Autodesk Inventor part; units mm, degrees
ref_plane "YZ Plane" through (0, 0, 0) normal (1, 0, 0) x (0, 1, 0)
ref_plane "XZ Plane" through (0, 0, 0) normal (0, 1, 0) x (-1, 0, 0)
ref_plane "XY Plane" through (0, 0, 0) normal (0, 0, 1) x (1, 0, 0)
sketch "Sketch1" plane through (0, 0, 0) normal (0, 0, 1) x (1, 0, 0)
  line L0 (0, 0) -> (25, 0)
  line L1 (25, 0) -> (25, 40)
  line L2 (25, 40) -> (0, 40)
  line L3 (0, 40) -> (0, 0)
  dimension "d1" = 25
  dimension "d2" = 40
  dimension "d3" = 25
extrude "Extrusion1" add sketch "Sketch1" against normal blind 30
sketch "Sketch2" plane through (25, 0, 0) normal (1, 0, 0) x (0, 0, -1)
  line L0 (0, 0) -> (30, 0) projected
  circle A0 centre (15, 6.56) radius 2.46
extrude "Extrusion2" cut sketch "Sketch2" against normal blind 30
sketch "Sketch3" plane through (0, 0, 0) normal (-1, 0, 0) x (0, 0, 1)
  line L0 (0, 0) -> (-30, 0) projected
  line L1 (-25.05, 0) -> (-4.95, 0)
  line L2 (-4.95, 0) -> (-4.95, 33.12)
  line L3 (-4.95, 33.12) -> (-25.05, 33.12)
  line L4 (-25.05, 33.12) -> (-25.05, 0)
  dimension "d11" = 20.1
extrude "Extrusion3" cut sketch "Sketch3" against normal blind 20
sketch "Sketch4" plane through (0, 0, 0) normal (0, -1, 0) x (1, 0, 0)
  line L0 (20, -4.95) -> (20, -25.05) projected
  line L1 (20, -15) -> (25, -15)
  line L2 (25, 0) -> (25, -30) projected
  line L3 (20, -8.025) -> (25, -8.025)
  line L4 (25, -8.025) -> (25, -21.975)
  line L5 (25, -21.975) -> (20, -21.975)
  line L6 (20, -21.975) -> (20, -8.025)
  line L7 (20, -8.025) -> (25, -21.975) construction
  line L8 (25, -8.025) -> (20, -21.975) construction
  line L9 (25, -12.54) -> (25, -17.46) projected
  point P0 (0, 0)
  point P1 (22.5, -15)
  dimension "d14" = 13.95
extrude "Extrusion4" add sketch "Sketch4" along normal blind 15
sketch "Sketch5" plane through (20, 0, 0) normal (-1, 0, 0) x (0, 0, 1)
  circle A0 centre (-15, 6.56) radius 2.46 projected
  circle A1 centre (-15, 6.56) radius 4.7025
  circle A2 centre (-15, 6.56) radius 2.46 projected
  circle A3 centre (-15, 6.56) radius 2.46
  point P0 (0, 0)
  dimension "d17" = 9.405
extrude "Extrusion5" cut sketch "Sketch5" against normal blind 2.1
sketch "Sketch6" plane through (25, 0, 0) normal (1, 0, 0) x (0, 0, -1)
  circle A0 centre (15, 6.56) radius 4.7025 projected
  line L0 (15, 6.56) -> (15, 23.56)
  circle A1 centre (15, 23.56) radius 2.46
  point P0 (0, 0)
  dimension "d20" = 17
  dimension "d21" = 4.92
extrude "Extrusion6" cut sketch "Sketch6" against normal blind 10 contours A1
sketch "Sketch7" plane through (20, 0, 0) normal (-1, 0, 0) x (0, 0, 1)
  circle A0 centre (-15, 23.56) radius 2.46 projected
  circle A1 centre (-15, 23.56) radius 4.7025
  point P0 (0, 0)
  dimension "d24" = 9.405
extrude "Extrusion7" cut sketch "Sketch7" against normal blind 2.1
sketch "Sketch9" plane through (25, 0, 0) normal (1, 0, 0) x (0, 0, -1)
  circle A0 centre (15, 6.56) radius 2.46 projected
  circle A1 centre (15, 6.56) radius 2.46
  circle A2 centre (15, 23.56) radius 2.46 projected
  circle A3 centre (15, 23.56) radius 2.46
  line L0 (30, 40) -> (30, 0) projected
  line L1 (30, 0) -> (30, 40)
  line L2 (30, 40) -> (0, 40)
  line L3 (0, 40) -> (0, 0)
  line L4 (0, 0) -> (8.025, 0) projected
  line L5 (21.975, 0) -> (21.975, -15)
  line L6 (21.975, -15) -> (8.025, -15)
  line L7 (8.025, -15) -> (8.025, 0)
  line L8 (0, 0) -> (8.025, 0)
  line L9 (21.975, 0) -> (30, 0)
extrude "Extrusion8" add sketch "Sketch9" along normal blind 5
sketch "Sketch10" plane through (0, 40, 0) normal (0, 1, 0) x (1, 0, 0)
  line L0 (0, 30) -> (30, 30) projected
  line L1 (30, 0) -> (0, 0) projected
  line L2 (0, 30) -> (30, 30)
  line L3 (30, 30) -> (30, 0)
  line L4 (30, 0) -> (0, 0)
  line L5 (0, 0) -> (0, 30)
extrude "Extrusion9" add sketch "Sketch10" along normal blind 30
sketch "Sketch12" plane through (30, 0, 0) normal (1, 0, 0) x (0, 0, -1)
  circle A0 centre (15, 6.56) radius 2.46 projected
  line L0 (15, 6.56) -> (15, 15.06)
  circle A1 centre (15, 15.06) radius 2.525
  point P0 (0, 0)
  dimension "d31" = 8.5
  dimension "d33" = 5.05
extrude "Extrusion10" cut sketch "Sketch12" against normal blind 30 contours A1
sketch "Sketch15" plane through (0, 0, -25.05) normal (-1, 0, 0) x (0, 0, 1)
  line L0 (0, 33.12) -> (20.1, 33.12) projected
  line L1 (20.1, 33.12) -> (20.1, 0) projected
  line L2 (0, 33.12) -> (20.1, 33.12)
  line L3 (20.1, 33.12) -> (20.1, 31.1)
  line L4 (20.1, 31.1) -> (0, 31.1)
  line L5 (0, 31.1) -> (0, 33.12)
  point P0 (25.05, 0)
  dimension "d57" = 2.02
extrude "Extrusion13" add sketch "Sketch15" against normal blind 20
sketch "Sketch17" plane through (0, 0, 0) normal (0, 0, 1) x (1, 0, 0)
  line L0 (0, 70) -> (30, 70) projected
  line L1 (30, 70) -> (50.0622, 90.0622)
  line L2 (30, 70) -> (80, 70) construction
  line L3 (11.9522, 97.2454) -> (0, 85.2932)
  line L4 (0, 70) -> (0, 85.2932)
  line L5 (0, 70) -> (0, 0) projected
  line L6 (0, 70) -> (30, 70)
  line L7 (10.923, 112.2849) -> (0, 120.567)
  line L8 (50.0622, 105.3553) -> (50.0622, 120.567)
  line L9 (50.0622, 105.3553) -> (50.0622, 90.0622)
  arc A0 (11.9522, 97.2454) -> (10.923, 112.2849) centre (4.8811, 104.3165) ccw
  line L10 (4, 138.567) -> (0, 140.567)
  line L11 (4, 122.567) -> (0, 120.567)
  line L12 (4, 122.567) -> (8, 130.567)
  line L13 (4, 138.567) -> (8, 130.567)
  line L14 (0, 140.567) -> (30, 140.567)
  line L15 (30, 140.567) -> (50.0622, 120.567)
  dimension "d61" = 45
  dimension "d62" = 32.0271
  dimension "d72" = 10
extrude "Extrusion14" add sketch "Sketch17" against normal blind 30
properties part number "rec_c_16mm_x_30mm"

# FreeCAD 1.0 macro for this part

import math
import FreeCAD as App
import Part
import Sketcher
Q = App.Units.Quantity

doc = App.newDocument("Part")
params = doc.addObject("Spreadsheet::Sheet", "Params")
for row, (alias, value) in enumerate([
    ("sketch1_width", "25 mm"),
    ("sketch1_height", "40 mm"),
    ("pad1_length", "30 mm"),
    ("sketch2_diameter", "4.92 mm"),
    ("pocket1_length", "30 mm"),
    ("sketch3_height", "20.1 mm"),
    ("sketch3_width", "33.12 mm"),
    ("pocket2_length", "20 mm"),
    ("sketch4_height", "13.95 mm"),
    ("sketch4_width", "5 mm"),
    ("pad2_length", "15 mm"),
    ("sketch5_diameter", "4.92 mm"),
    ("pocket3_length", "2.1 mm"),
    ("sketch6_diameter", "4.92 mm"),
    ("pocket4_length", "10 mm"),
    ("sketch7_diameter", "4.92 mm"),
    ("pocket5_length", "2.1 mm"),
    ("sketch8_diameter", "4.92 mm"),
    ("sketch8_width", "40 mm"),
    ("sketch8_width2", "15 mm"),
    ("sketch8_height", "30 mm"),
    ("sketch8_height2", "13.95 mm"),
    ("pad3_length", "5 mm"),
    ("sketch9_width", "30 mm"),
    ("pad4_length", "30 mm"),
    ("sketch10_diameter", "5.05 mm"),
    ("pocket6_length", "30 mm"),
    ("sketch11_width", "2.02 mm"),
    ("sketch11_height", "20.1 mm"),
    ("pad5_length", "20 mm"),
    ("sketch12_radius", "10 mm"),
    ("sketch12_width", "30 mm"),
    ("pad6_length", "30 mm"),
], start=1):
    params.set(f"A{row}", alias)
    params.set(f"B{row}", "=" + value)
    params.setAlias(f"B{row}", alias)

body = doc.addObject("PartDesign::Body", "Body")

sketch1 = doc.addObject("Sketcher::SketchObject", "Sketch")
body.addObject(sketch1)
sketch1.AttachmentSupport = (doc.XY_Plane, [""])
sketch1.MapMode = "FlatFace"
sketch1.addGeometry([
    Part.LineSegment(App.Vector(0, 40, 0), App.Vector(0, 0, 0)),
    Part.LineSegment(App.Vector(0, 0, 0), App.Vector(25, 0, 0)),
    Part.LineSegment(App.Vector(25, 0, 0), App.Vector(25, 40, 0)),
    Part.LineSegment(App.Vector(25, 40, 0), App.Vector(0, 40, 0)),
], False)
sketch1.addConstraint([
    Sketcher.Constraint("Coincident", 0, 2, 1, 1),
    Sketcher.Constraint("Coincident", 1, 2, 2, 1),
    Sketcher.Constraint("Coincident", 2, 2, 3, 1),
    Sketcher.Constraint("Coincident", 3, 2, 0, 1),
    Sketcher.Constraint("Vertical", 0),
    Sketcher.Constraint("Horizontal", 1),
    Sketcher.Constraint("Vertical", 2),
    Sketcher.Constraint("Horizontal", 3),
    Sketcher.Constraint("Coincident", 0, 2, -1, 1),
    Sketcher.Constraint("DistanceX", 1, 1, 1, 2, Q("25 mm")),
    Sketcher.Constraint("DistanceY", 0, 2, 0, 1, Q("40 mm")),
])
sketch1.setExpression("Constraints[9]", "Params.sketch1_width")
sketch1.setExpression("Constraints[10]", "Params.sketch1_height")
pad1 = doc.addObject("PartDesign::Pad", "Pad")
body.addObject(pad1)
pad1.Profile = sketch1
pad1.setExpression("Length", "Params.pad1_length")
pad1.Reversed = True

sketch2 = doc.addObject("Sketcher::SketchObject", "Sketch001")
body.addObject(sketch2)
sketch2.AttachmentSupport = (doc.YZ_Plane, [""])
sketch2.MapMode = "FlatFace"
sketch2.AttachmentOffset = App.Placement(App.Vector(0, 0, 25), App.Rotation())
sketch2.addGeometry(Part.Circle(App.Vector(6.6, -15, 0), App.Vector(0, 0, 1), 2.5), False)
sketch2.addConstraint([
    Sketcher.Constraint("Diameter", 0, Q("4.92 mm")),
    Sketcher.Constraint("DistanceY", 0, 3, -1, 1, Q("15 mm")),
    Sketcher.Constraint("DistanceX", -1, 1, 0, 3, Q("6.56 mm")),
])
sketch2.setExpression("Constraints[0]", "Params.sketch2_diameter")
pocket1 = doc.addObject("PartDesign::Pocket", "Pocket")
body.addObject(pocket1)
pocket1.Profile = sketch2
pocket1.setExpression("Length", "Params.pocket1_length")

sketch3 = doc.addObject("Sketcher::SketchObject", "Sketch002")
body.addObject(sketch3)
sketch3.AttachmentSupport = (doc.YZ_Plane, [""])
sketch3.MapMode = "FlatFace"
sketch3.addGeometry([
    Part.LineSegment(App.Vector(0, -25, 0), App.Vector(0, -5, 0)),
    Part.LineSegment(App.Vector(0, -5, 0), App.Vector(33, -5, 0)),
    Part.LineSegment(App.Vector(33, -5, 0), App.Vector(33, -25, 0)),
    Part.LineSegment(App.Vector(33, -25, 0), App.Vector(0, -25, 0)),
], False)
sketch3.addConstraint([
    Sketcher.Constraint("Coincident", 0, 2, 1, 1),
    Sketcher.Constraint("Coincident", 1, 2, 2, 1),
    Sketcher.Constraint("Coincident", 2, 2, 3, 1),
    Sketcher.Constraint("Coincident", 3, 2, 0, 1),
    Sketcher.Constraint("Vertical", 0),
    Sketcher.Constraint("Horizontal", 1),
    Sketcher.Constraint("Vertical", 2),
    Sketcher.Constraint("Horizontal", 3),
    Sketcher.Constraint("PointOnObject", 0, 2, -2),
    Sketcher.Constraint("DistanceY", 0, 1, 0, 2, Q("20.1 mm")),
    Sketcher.Constraint("DistanceX", 1, 1, 1, 2, Q("33.12 mm")),
    Sketcher.Constraint("DistanceY", 0, 2, -1, 1, Q("4.95 mm")),
])
sketch3.setExpression("Constraints[9]", "Params.sketch3_height")
sketch3.setExpression("Constraints[10]", "Params.sketch3_width")
pocket2 = doc.addObject("PartDesign::Pocket", "Pocket001")
body.addObject(pocket2)
pocket2.Profile = sketch3
pocket2.setExpression("Length", "Params.pocket2_length")
pocket2.Reversed = True

sketch4 = doc.addObject("Sketcher::SketchObject", "Sketch003")
body.addObject(sketch4)
sketch4.AttachmentSupport = (doc.XZ_Plane, [""])
sketch4.MapMode = "FlatFace"
sketch4.addGeometry([
    Part.LineSegment(App.Vector(25, -8, 0), App.Vector(20, -8, 0)),
    Part.LineSegment(App.Vector(20, -8, 0), App.Vector(20, -22, 0)),
    Part.LineSegment(App.Vector(20, -22, 0), App.Vector(25, -22, 0)),
    Part.LineSegment(App.Vector(25, -22, 0), App.Vector(25, -8, 0)),
], False)
sketch4.addConstraint([
    Sketcher.Constraint("Coincident", 0, 2, 1, 1),
    Sketcher.Constraint("Coincident", 1, 2, 2, 1),
    Sketcher.Constraint("Coincident", 2, 2, 3, 1),
    Sketcher.Constraint("Coincident", 3, 2, 0, 1),
    Sketcher.Constraint("Horizontal", 0),
    Sketcher.Constraint("Vertical", 1),
    Sketcher.Constraint("Horizontal", 2),
    Sketcher.Constraint("Vertical", 3),
    Sketcher.Constraint("DistanceY", 1, 2, 1, 1, Q("13.95 mm")),
    Sketcher.Constraint("DistanceX", 0, 2, 0, 1, Q("5 mm")),
    Sketcher.Constraint("DistanceX", -1, 1, 0, 2, Q("20 mm")),
    Sketcher.Constraint("DistanceY", 0, 2, -1, 1, Q("8.025 mm")),
])
sketch4.setExpression("Constraints[8]", "Params.sketch4_height")
sketch4.setExpression("Constraints[9]", "Params.sketch4_width")
pad2 = doc.addObject("PartDesign::Pad", "Pad001")
body.addObject(pad2)
pad2.Profile = sketch4
pad2.setExpression("Length", "Params.pad2_length")

sketch5 = doc.addObject("Sketcher::SketchObject", "Sketch004")
body.addObject(sketch5)
sketch5.AttachmentSupport = (doc.YZ_Plane, [""])
sketch5.MapMode = "FlatFace"
sketch5.AttachmentOffset = App.Placement(App.Vector(0, 0, 20), App.Rotation())
sketch5.addGeometry([
    Part.Circle(App.Vector(6.6, -15, 0), App.Vector(0, 0, 1), 4.7),
    Part.Circle(App.Vector(6.6, -15, 0), App.Vector(0, 0, 1), 2.5),
], False)
sketch5.addConstraint([
    Sketcher.Constraint("Coincident", 1, 3, 0, 3),
    Sketcher.Constraint("Diameter", 0, Q("9.405 mm")),
    Sketcher.Constraint("Diameter", 1, Q("4.92 mm")),
    Sketcher.Constraint("DistanceY", 0, 3, -1, 1, Q("15 mm")),
    Sketcher.Constraint("DistanceX", -1, 1, 0, 3, Q("6.56 mm")),
])
sketch5.setExpression("Constraints[2]", "Params.sketch5_diameter")
pocket3 = doc.addObject("PartDesign::Pocket", "Pocket002")
body.addObject(pocket3)
pocket3.Profile = sketch5
pocket3.setExpression("Length", "Params.pocket3_length")
pocket3.Reversed = True

sketch6 = doc.addObject("Sketcher::SketchObject", "Sketch005")
body.addObject(sketch6)
sketch6.AttachmentSupport = (doc.YZ_Plane, [""])
sketch6.MapMode = "FlatFace"
sketch6.AttachmentOffset = App.Placement(App.Vector(0, 0, 25), App.Rotation())
sketch6.addGeometry(Part.Circle(App.Vector(23.6, -15, 0), App.Vector(0, 0, 1), 2.5), False)
sketch6.addConstraint([
    Sketcher.Constraint("Diameter", 0, Q("4.92 mm")),
    Sketcher.Constraint("DistanceY", 0, 3, -1, 1, Q("15 mm")),
    Sketcher.Constraint("DistanceX", -1, 1, 0, 3, Q("23.56 mm")),
])
sketch6.setExpression("Constraints[0]", "Params.sketch6_diameter")
pocket4 = doc.addObject("PartDesign::Pocket", "Pocket003")
body.addObject(pocket4)
pocket4.Profile = sketch6
pocket4.setExpression("Length", "Params.pocket4_length")

sketch7 = doc.addObject("Sketcher::SketchObject", "Sketch006")
body.addObject(sketch7)
sketch7.AttachmentSupport = (doc.YZ_Plane, [""])
sketch7.MapMode = "FlatFace"
sketch7.AttachmentOffset = App.Placement(App.Vector(0, 0, 20), App.Rotation())
sketch7.addGeometry([
    Part.Circle(App.Vector(23.6, -15, 0), App.Vector(0, 0, 1), 4.7),
    Part.Circle(App.Vector(23.6, -15, 0), App.Vector(0, 0, 1), 2.5),
], False)
sketch7.addConstraint([
    Sketcher.Constraint("Coincident", 1, 3, 0, 3),
    Sketcher.Constraint("Diameter", 0, Q("9.405 mm")),
    Sketcher.Constraint("Diameter", 1, Q("4.92 mm")),
    Sketcher.Constraint("DistanceY", 0, 3, -1, 1, Q("15 mm")),
    Sketcher.Constraint("DistanceX", -1, 1, 0, 3, Q("23.56 mm")),
])
sketch7.setExpression("Constraints[2]", "Params.sketch7_diameter")
pocket5 = doc.addObject("PartDesign::Pocket", "Pocket004")
body.addObject(pocket5)
pocket5.Profile = sketch7
pocket5.setExpression("Length", "Params.pocket5_length")
pocket5.Reversed = True

sketch8 = doc.addObject("Sketcher::SketchObject", "Sketch007")
body.addObject(sketch8)
sketch8.AttachmentSupport = (doc.YZ_Plane, [""])
sketch8.MapMode = "FlatFace"
sketch8.AttachmentOffset = App.Placement(App.Vector(0, 0, 25), App.Rotation())
sketch8.addGeometry([
    Part.LineSegment(App.Vector(0, -30, 0), App.Vector(40, -30, 0)),
    Part.LineSegment(App.Vector(40, -30, 0), App.Vector(40, 0, 0)),
    Part.LineSegment(App.Vector(40, 0, 0), App.Vector(0, 0, 0)),
    Part.LineSegment(App.Vector(0, 0, 0), App.Vector(0, -8, 0)),
    Part.LineSegment(App.Vector(0, -8, 0), App.Vector(-15, -8, 0)),
    Part.LineSegment(App.Vector(-15, -8, 0), App.Vector(-15, -22, 0)),
    Part.LineSegment(App.Vector(-15, -22, 0), App.Vector(0, -22, 0)),
    Part.LineSegment(App.Vector(0, -22, 0), App.Vector(0, -30, 0)),
    Part.Circle(App.Vector(6.6, -15, 0), App.Vector(0, 0, 1), 2.5),
    Part.Circle(App.Vector(23.6, -15, 0), App.Vector(0, 0, 1), 2.5),
], False)
sketch8.addConstraint([
    Sketcher.Constraint("Coincident", 0, 2, 1, 1),
    Sketcher.Constraint("Coincident", 1, 2, 2, 1),
    Sketcher.Constraint("Coincident", 2, 2, 3, 1),
    Sketcher.Constraint("Coincident", 3, 2, 4, 1),
    Sketcher.Constraint("Coincident", 4, 2, 5, 1),
    Sketcher.Constraint("Coincident", 5, 2, 6, 1),
    Sketcher.Constraint("Coincident", 6, 2, 7, 1),
    Sketcher.Constraint("Coincident", 7, 2, 0, 1),
    Sketcher.Constraint("Horizontal", 0),
    Sketcher.Constraint("Vertical", 1),
    Sketcher.Constraint("Horizontal", 2),
    Sketcher.Constraint("Vertical", 3),
    Sketcher.Constraint("Horizontal", 4),
    Sketcher.Constraint("Vertical", 5),
    Sketcher.Constraint("Horizontal", 6),
    Sketcher.Constraint("Vertical", 7),
    Sketcher.Constraint("Coincident", 2, 2, -1, 1),
    Sketcher.Constraint("Equal", 8, 9),
    Sketcher.Constraint("PointOnObject", 6, 2, -2),
    Sketcher.Constraint("Horizontal", 8, 3, 9, 3),
    Sketcher.Constraint("Equal", 3, 7),
    Sketcher.Constraint("Diameter", 8, Q("4.92 mm")),
    Sketcher.Constraint("DistanceX", 0, 1, 0, 2, Q("40 mm")),
    Sketcher.Constraint("DistanceX", 4, 2, 4, 1, Q("15 mm")),
    Sketcher.Constraint("DistanceY", 1, 1, 1, 2, Q("30 mm")),
    Sketcher.Constraint("DistanceY", 8, 3, -1, 1, Q("15 mm")),
    Sketcher.Constraint("DistanceX", 8, 3, 9, 3, Q("17 mm")),
    Sketcher.Constraint("DistanceY", 5, 2, 5, 1, Q("13.95 mm")),
    Sketcher.Constraint("DistanceX", -1, 1, 8, 3, Q("6.56 mm")),
])
sketch8.setExpression("Constraints[21]", "Params.sketch8_diameter")
sketch8.setExpression("Constraints[22]", "Params.sketch8_width")
sketch8.setExpression("Constraints[23]", "Params.sketch8_width2")
sketch8.setExpression("Constraints[24]", "Params.sketch8_height")
sketch8.setExpression("Constraints[27]", "Params.sketch8_height2")
pad3 = doc.addObject("PartDesign::Pad", "Pad002")
body.addObject(pad3)
pad3.Profile = sketch8
pad3.setExpression("Length", "Params.pad3_length")

sketch9 = doc.addObject("Sketcher::SketchObject", "Sketch008")
body.addObject(sketch9)
sketch9.AttachmentSupport = (doc.XZ_Plane, [""])
sketch9.MapMode = "FlatFace"
sketch9.AttachmentOffset = App.Placement(App.Vector(0, 0, -40), App.Rotation())
sketch9.addGeometry([
    Part.LineSegment(App.Vector(30, -30, 0), App.Vector(0, -30, 0)),
    Part.LineSegment(App.Vector(0, -30, 0), App.Vector(0, 0, 0)),
    Part.LineSegment(App.Vector(0, 0, 0), App.Vector(30, 0, 0)),
    Part.LineSegment(App.Vector(30, 0, 0), App.Vector(30, -30, 0)),
], False)
sketch9.addConstraint([
    Sketcher.Constraint("Coincident", 0, 2, 1, 1),
    Sketcher.Constraint("Coincident", 1, 2, 2, 1),
    Sketcher.Constraint("Coincident", 2, 2, 3, 1),
    Sketcher.Constraint("Coincident", 3, 2, 0, 1),
    Sketcher.Constraint("Horizontal", 0),
    Sketcher.Constraint("Vertical", 1),
    Sketcher.Constraint("Horizontal", 2),
    Sketcher.Constraint("Vertical", 3),
    Sketcher.Constraint("Coincident", 1, 2, -1, 1),
    Sketcher.Constraint("Equal", 2, 1),
    Sketcher.Constraint("DistanceX", 0, 2, 0, 1, Q("30 mm")),
])
sketch9.setExpression("Constraints[10]", "Params.sketch9_width")
pad4 = doc.addObject("PartDesign::Pad", "Pad003")
body.addObject(pad4)
pad4.Profile = sketch9
pad4.setExpression("Length", "Params.pad4_length")
pad4.Reversed = True

sketch10 = doc.addObject("Sketcher::SketchObject", "Sketch009")
body.addObject(sketch10)
sketch10.AttachmentSupport = (doc.YZ_Plane, [""])
sketch10.MapMode = "FlatFace"
sketch10.AttachmentOffset = App.Placement(App.Vector(0, 0, 30), App.Rotation())
sketch10.addGeometry(Part.Circle(App.Vector(15.1, -15, 0), App.Vector(0, 0, 1), 2.5), False)
sketch10.addConstraint([
    Sketcher.Constraint("Diameter", 0, Q("5.05 mm")),
    Sketcher.Constraint("DistanceY", 0, 3, -1, 1, Q("15 mm")),
    Sketcher.Constraint("DistanceX", -1, 1, 0, 3, Q("15.06 mm")),
])
sketch10.setExpression("Constraints[0]", "Params.sketch10_diameter")
pocket6 = doc.addObject("PartDesign::Pocket", "Pocket005")
body.addObject(pocket6)
pocket6.Profile = sketch10
pocket6.setExpression("Length", "Params.pocket6_length")

sketch11 = doc.addObject("Sketcher::SketchObject", "Sketch010")
body.addObject(sketch11)
sketch11.AttachmentSupport = (doc.YZ_Plane, [""])
sketch11.MapMode = "FlatFace"
sketch11.addGeometry([
    Part.LineSegment(App.Vector(33.1, -5, 0), App.Vector(33.1, -25.1, 0)),
    Part.LineSegment(App.Vector(33.1, -25.1, 0), App.Vector(31.1, -25.1, 0)),
    Part.LineSegment(App.Vector(31.1, -25.1, 0), App.Vector(31.1, -5, 0)),
    Part.LineSegment(App.Vector(31.1, -5, 0), App.Vector(33.1, -5, 0)),
], False)
sketch11.addConstraint([
    Sketcher.Constraint("Coincident", 0, 2, 1, 1),
    Sketcher.Constraint("Coincident", 1, 2, 2, 1),
    Sketcher.Constraint("Coincident", 2, 2, 3, 1),
    Sketcher.Constraint("Coincident", 3, 2, 0, 1),
    Sketcher.Constraint("Vertical", 0),
    Sketcher.Constraint("Horizontal", 1),
    Sketcher.Constraint("Vertical", 2),
    Sketcher.Constraint("Horizontal", 3),
    Sketcher.Constraint("DistanceX", 1, 2, 1, 1, Q("2.02 mm")),
    Sketcher.Constraint("DistanceY", 0, 2, 0, 1, Q("20.1 mm")),
    Sketcher.Constraint("DistanceX", -1, 1, 1, 2, Q("31.1 mm")),
    Sketcher.Constraint("DistanceY", 0, 2, -1, 1, Q("25.05 mm")),
])
sketch11.setExpression("Constraints[8]", "Params.sketch11_width")
sketch11.setExpression("Constraints[9]", "Params.sketch11_height")
pad5 = doc.addObject("PartDesign::Pad", "Pad004")
body.addObject(pad5)
pad5.Profile = sketch11
pad5.setExpression("Length", "Params.pad5_length")

sketch12 = doc.addObject("Sketcher::SketchObject", "Sketch011")
body.addObject(sketch12)
sketch12.AttachmentSupport = (doc.XY_Plane, [""])
sketch12.MapMode = "FlatFace"
sketch12.addGeometry([
    Part.LineSegment(App.Vector(0, 85.3, 0), App.Vector(0, 70, 0)),
    Part.LineSegment(App.Vector(0, 70, 0), App.Vector(30, 70, 0)),
    Part.LineSegment(App.Vector(30, 70, 0), App.Vector(50.1, 90.1, 0)),
    Part.LineSegment(App.Vector(50.1, 90.1, 0), App.Vector(50.1, 120.6, 0)),
    Part.LineSegment(App.Vector(50.1, 120.6, 0), App.Vector(30, 140.6, 0)),
    Part.LineSegment(App.Vector(30, 140.6, 0), App.Vector(0, 140.6, 0)),
    Part.LineSegment(App.Vector(0, 140.6, 0), App.Vector(4, 138.6, 0)),
    Part.LineSegment(App.Vector(4, 138.6, 0), App.Vector(8, 130.6, 0)),
    Part.LineSegment(App.Vector(8, 130.6, 0), App.Vector(4, 122.6, 0)),
    Part.LineSegment(App.Vector(4, 122.6, 0), App.Vector(0, 120.6, 0)),
    Part.LineSegment(App.Vector(0, 120.6, 0), App.Vector(10.9, 112.3, 0)),
    Part.ArcOfCircle(Part.Circle(App.Vector(4.9, 104.3, 0), App.Vector(0, 0, 1), 10), math.radians(-45), math.radians(53)),
    Part.LineSegment(App.Vector(12, 97.2, 0), App.Vector(0, 85.3, 0)),
], False)
sketch12.addConstraint([
    Sketcher.Constraint("Coincident", 0, 2, 1, 1),
    Sketcher.Constraint("Coincident", 1, 2, 2, 1),
    Sketcher.Constraint("Coincident", 2, 2, 3, 1),
    Sketcher.Constraint("Coincident", 3, 2, 4, 1),
    Sketcher.Constraint("Coincident", 4, 2, 5, 1),
    Sketcher.Constraint("Coincident", 5, 2, 6, 1),
    Sketcher.Constraint("Coincident", 6, 2, 7, 1),
    Sketcher.Constraint("Coincident", 7, 2, 8, 1),
    Sketcher.Constraint("Coincident", 8, 2, 9, 1),
    Sketcher.Constraint("Coincident", 9, 2, 10, 1),
    Sketcher.Constraint("Tangent", 10, 2, 11, 2),
    Sketcher.Constraint("Tangent", 11, 1, 12, 1),
    Sketcher.Constraint("Coincident", 12, 2, 0, 1),
    Sketcher.Constraint("Vertical", 0),
    Sketcher.Constraint("Horizontal", 1),
    Sketcher.Constraint("Vertical", 3),
    Sketcher.Constraint("Horizontal", 5),
    Sketcher.Constraint("PointOnObject", 0, 2, -2),
    Sketcher.Constraint("PointOnObject", 5, 2, -2),
    Sketcher.Constraint("PointOnObject", 9, 2, -2),
    Sketcher.Constraint("Perpendicular", 6, 8),
    Sketcher.Constraint("Perpendicular", 7, 9),
    Sketcher.Constraint("Parallel", 2, 12),
    Sketcher.Constraint("Horizontal", 3, 2, 9, 2),
    Sketcher.Constraint("Vertical", 1, 2, 4, 2),
    Sketcher.Constraint("Vertical", 6, 2, 8, 2),
    Sketcher.Constraint("Equal", 7, 8),
    Sketcher.Constraint("Radius", 11, Q("10 mm")),
    Sketcher.Constraint("Angle", 2, Q("45 deg")),
    Sketcher.Constraint("DistanceY", 7, 2, 5, 2, Q("10 mm")),
    Sketcher.Constraint("DistanceX", 1, 1, 1, 2, Q("30 mm")),
    Sketcher.Constraint("DistanceY", -1, 1, 0, 2, Q("70 mm")),
    Sketcher.Constraint("DistanceX", -1, 1, 6, 2, Q("4 mm")),
    Sketcher.Constraint("DistanceX", -1, 1, 7, 2, Q("8 mm")),
    Sketcher.Constraint("Angle", 4, Q("135.089 deg")),
    Sketcher.Constraint("Angle", 10, Q("-37.1703 deg")),
    Sketcher.Constraint("Distance", 12, Q("16.903 mm")),
    Sketcher.Constraint("DistanceY", 0, 2, 0, 1, Q("15.2932 mm")),
])
sketch12.setExpression("Constraints[27]", "Params.sketch12_radius")
sketch12.setExpression("Constraints[30]", "Params.sketch12_width")
pad6 = doc.addObject("PartDesign::Pad", "Pad005")
body.addObject(pad6)
pad6.Profile = sketch12
pad6.setExpression("Length", "Params.pad6_length")
pad6.Reversed = True

doc.recompute()
